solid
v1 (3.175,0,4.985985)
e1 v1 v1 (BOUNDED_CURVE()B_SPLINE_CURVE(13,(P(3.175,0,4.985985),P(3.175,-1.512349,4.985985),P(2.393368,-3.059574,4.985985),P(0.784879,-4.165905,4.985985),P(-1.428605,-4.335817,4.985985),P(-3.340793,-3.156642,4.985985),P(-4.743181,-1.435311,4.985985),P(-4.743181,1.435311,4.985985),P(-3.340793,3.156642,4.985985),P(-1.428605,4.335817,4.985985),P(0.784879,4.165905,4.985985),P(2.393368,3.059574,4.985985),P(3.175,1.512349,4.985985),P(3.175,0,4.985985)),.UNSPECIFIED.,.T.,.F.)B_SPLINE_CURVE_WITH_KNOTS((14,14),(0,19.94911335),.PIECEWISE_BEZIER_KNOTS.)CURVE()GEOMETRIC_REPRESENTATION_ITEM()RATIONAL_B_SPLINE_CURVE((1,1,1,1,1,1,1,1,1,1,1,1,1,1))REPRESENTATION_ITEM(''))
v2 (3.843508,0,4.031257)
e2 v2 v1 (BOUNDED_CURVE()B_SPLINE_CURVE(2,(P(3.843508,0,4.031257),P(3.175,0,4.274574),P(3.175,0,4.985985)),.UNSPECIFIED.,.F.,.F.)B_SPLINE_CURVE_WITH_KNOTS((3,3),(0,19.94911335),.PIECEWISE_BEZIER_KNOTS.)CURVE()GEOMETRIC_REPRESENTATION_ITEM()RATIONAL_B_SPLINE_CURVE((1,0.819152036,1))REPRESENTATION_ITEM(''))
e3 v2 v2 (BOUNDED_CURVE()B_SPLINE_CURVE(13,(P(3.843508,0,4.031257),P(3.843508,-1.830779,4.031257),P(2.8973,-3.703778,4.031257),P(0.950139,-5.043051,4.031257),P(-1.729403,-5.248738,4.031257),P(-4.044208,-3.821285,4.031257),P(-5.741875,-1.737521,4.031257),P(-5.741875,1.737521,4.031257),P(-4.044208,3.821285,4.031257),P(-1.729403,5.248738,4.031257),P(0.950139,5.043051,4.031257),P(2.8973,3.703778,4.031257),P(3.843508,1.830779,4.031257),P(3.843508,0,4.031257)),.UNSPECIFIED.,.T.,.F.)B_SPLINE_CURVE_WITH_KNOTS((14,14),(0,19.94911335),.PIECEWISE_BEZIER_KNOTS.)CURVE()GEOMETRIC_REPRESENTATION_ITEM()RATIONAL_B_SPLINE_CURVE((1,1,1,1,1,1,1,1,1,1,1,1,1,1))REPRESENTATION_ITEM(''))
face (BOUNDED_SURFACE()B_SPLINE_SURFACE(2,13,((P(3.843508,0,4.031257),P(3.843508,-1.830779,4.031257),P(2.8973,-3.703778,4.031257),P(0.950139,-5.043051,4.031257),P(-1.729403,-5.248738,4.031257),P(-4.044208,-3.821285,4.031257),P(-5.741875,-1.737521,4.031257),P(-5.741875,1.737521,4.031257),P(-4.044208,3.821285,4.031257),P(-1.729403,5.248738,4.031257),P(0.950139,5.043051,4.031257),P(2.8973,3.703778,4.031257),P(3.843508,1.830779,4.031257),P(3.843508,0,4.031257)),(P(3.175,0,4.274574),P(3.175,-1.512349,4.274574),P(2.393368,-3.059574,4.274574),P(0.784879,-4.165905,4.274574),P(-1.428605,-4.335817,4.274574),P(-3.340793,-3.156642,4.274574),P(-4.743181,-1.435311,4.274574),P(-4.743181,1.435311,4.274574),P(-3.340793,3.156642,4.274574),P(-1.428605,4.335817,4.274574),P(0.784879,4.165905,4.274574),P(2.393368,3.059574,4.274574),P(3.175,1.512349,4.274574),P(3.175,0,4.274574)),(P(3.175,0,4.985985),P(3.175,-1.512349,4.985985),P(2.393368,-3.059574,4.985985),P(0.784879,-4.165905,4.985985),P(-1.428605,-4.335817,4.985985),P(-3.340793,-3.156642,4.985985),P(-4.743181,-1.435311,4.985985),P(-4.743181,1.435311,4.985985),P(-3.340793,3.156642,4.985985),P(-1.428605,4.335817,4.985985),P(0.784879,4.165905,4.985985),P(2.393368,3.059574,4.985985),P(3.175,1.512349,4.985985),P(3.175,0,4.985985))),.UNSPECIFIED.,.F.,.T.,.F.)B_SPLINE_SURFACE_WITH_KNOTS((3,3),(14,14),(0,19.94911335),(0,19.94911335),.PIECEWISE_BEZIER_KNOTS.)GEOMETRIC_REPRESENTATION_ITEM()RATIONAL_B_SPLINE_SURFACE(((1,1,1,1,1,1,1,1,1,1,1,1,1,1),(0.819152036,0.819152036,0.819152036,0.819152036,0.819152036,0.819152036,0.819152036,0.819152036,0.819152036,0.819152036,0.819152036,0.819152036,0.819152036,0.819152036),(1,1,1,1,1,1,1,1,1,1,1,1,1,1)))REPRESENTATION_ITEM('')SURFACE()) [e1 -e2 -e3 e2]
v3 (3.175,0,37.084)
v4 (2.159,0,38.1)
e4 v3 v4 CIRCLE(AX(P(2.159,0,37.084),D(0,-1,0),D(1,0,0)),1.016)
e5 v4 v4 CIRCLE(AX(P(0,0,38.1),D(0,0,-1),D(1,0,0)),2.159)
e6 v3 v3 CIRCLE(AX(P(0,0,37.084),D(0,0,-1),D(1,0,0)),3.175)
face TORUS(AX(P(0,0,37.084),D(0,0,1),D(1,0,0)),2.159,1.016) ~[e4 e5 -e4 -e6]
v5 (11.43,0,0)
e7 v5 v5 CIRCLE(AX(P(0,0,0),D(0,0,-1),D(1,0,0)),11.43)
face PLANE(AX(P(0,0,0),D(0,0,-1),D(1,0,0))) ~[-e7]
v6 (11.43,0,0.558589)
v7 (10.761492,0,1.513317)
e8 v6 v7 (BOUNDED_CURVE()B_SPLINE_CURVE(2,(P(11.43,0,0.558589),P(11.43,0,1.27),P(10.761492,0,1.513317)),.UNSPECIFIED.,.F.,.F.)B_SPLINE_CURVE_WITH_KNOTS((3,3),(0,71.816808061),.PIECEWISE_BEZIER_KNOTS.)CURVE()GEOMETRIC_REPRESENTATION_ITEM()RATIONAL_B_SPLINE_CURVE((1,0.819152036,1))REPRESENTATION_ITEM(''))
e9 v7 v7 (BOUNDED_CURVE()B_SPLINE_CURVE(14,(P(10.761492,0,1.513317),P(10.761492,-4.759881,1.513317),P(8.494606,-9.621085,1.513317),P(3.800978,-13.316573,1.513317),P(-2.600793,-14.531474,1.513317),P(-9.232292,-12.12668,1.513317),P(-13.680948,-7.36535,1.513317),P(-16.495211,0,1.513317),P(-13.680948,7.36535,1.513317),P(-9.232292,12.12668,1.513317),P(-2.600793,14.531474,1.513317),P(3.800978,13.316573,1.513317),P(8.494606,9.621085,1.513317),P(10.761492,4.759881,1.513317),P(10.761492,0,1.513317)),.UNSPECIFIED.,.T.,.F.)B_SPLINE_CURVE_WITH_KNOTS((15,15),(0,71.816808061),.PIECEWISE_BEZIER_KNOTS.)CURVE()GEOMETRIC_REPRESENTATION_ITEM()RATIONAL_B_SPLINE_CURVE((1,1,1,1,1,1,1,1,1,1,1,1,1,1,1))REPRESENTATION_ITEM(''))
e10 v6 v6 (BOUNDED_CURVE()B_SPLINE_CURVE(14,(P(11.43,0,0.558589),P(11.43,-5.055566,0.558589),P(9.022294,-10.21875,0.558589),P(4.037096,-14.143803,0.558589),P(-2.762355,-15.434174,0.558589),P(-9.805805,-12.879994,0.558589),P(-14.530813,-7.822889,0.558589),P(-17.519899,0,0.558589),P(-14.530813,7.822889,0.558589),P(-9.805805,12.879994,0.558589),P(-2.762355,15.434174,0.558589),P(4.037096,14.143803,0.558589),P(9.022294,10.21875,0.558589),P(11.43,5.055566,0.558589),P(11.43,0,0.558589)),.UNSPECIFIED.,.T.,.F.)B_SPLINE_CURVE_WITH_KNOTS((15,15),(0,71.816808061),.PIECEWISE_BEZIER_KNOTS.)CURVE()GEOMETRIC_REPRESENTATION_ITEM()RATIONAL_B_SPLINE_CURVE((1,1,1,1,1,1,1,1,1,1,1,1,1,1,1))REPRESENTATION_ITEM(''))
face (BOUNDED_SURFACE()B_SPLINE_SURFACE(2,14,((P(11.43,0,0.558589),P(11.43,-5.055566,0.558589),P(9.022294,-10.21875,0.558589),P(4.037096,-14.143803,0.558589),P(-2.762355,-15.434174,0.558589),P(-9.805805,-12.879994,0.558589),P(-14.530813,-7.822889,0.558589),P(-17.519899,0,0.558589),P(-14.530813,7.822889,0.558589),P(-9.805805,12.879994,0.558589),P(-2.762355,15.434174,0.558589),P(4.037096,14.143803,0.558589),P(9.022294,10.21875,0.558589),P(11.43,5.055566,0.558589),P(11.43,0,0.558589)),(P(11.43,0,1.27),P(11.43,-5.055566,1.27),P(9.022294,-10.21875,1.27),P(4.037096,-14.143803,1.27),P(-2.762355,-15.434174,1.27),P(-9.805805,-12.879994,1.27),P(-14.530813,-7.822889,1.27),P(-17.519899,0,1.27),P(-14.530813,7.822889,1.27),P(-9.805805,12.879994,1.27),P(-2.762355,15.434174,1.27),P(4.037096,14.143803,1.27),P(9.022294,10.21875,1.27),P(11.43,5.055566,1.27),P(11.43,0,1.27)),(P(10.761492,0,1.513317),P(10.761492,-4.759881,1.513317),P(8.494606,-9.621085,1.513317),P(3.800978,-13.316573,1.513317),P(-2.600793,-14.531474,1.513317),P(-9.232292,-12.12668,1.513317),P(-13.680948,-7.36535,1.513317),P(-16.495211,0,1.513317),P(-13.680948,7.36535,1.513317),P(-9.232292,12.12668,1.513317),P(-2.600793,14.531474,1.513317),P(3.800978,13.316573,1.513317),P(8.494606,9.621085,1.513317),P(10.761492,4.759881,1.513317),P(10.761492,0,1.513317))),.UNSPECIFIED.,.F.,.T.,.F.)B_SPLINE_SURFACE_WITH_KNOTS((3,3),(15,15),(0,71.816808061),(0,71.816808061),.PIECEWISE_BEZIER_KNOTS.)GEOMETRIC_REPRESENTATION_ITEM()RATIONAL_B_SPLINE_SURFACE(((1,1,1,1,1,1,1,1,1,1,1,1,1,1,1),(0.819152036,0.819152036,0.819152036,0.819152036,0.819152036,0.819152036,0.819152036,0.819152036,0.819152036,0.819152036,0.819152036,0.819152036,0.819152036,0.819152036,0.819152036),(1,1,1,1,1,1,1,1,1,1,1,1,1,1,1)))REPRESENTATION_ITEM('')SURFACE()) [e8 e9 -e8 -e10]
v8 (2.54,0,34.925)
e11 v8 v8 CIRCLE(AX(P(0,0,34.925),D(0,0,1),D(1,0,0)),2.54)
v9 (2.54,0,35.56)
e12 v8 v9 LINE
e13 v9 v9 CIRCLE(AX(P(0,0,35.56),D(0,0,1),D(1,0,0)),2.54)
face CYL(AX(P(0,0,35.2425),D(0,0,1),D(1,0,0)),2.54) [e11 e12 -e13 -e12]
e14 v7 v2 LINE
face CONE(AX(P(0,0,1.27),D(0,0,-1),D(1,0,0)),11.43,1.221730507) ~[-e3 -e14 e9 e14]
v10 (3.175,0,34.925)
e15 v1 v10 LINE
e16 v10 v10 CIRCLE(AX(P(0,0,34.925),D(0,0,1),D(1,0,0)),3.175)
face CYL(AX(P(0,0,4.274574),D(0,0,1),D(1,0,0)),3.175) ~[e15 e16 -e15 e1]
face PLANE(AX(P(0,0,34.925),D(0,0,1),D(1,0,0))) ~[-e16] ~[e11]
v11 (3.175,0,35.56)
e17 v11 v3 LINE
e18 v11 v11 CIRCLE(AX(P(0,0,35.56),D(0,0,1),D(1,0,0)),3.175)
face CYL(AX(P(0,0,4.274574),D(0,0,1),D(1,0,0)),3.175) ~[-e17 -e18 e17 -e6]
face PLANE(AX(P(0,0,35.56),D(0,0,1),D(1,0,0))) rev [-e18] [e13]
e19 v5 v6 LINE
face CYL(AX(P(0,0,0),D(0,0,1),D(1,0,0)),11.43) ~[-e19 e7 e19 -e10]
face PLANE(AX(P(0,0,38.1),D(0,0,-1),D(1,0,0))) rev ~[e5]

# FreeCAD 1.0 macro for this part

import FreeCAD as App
import Part
import Sketcher
Q = App.Units.Quantity


def edges_at(feature, points):
    """Names of the edges that pass closest to the given points."""
    edges = feature.Shape.Edges
    near = lambda p: min(range(len(edges)), key=lambda i: edges[i].distToShape(Part.Vertex(*p))[0])
    return sorted({f"Edge{near(p) + 1}" for p in points})


def add_polygon(sketch, points):
    """Adds a closed chain of lines whose ends are joined by coincident constraints."""
    first, n = sketch.GeometryCount, len(points)
    for a, b in zip(points, points[1:] + points[:1]):
        sketch.addGeometry(Part.LineSegment(App.Vector(*a, 0), App.Vector(*b, 0)), False)
    for i in range(n):
        sketch.addConstraint(Sketcher.Constraint("Coincident", first + i, 2, first + (i + 1) % n, 1))

doc = App.newDocument("Part")
body = doc.addObject("PartDesign::Body", "Body")

# Sketch on XZ plane
sketch1 = body.newObject("Sketcher::SketchObject", "Sketch")
sketch1.AttachmentSupport = (doc.getObject("XZ_Plane"), [""])
sketch1.MapMode = "FlatFace"
add_polygon(sketch1, [(0, 38.1), (0, 0), (11.43, 0), (11.43, 1.27), (3.175, 4.274574), (3.175, 38.1)])  # lines 0-5
sketch1.addConstraint([
    Sketcher.Constraint("Vertical", 0),
    Sketcher.Constraint("Horizontal", 1),
    Sketcher.Constraint("Vertical", 2),
    Sketcher.Constraint("Vertical", 4),
    Sketcher.Constraint("Horizontal", 5),
    Sketcher.Constraint("Coincident", 0, 2, -1, 1),
    Sketcher.Constraint("DistanceY", 0, 2, 0, 1, Q("1.5 in")),
    Sketcher.Constraint("Angle", 3, Q("160.000002 deg")),
    Sketcher.Constraint("DistanceX", 1, 1, 1, 2, Q("0.45 in")),
    Sketcher.Constraint("DistanceY", 2, 1, 2, 2, Q("0.05 in")),
    Sketcher.Constraint("DistanceX", 5, 2, 5, 1, Q("0.125 in")),
])
revolution = body.newObject("PartDesign::Revolution", "Revolution")
revolution.Profile = sketch1
revolution.ReferenceAxis = (sketch1, ["V_Axis"])
revolution.Angle = 360
doc.recompute()

fillet = body.newObject("PartDesign::Fillet", "Fillet")
fillet.Base = (revolution, edges_at(revolution, [(-11.43, 0, 1.27), (-3.175, 0, 4.275)]))
fillet.Radius = Q("0.04 in")

# Sketch on XZ plane
sketch2 = body.newObject("Sketcher::SketchObject", "Sketch001")
sketch2.AttachmentSupport = (doc.getObject("XZ_Plane"), [""])
sketch2.MapMode = "FlatFace"
add_polygon(sketch2, [(2.54, 35.56), (2.54, 34.925), (3.175, 34.925), (3.175, 35.56)])  # lines 0-3
sketch2.addConstraint([
    Sketcher.Constraint("Vertical", 0),
    Sketcher.Constraint("Horizontal", 1),
    Sketcher.Constraint("Vertical", 2),
    Sketcher.Constraint("Horizontal", 3),
    Sketcher.Constraint("Equal", 3, 0),
    Sketcher.Constraint("DistanceX", -1, 1, 0, 2, Q("0.1 in")),
    Sketcher.Constraint("DistanceY", -1, 1, 2, 2, Q("1.4 in")),
    Sketcher.Constraint("DistanceX", 1, 1, 1, 2, Q("0.025 in")),
])
groove = body.newObject("PartDesign::Groove", "Groove")
groove.Profile = sketch2
groove.ReferenceAxis = (sketch2, ["V_Axis"])
groove.Angle = 360
doc.recompute()

fillet2 = body.newObject("PartDesign::Fillet", "Fillet001")
fillet2.Base = (groove, edges_at(groove, [(-3.175, 0, 38.1)]))
fillet2.Radius = Q("0.04 in")

doc.recompute()
